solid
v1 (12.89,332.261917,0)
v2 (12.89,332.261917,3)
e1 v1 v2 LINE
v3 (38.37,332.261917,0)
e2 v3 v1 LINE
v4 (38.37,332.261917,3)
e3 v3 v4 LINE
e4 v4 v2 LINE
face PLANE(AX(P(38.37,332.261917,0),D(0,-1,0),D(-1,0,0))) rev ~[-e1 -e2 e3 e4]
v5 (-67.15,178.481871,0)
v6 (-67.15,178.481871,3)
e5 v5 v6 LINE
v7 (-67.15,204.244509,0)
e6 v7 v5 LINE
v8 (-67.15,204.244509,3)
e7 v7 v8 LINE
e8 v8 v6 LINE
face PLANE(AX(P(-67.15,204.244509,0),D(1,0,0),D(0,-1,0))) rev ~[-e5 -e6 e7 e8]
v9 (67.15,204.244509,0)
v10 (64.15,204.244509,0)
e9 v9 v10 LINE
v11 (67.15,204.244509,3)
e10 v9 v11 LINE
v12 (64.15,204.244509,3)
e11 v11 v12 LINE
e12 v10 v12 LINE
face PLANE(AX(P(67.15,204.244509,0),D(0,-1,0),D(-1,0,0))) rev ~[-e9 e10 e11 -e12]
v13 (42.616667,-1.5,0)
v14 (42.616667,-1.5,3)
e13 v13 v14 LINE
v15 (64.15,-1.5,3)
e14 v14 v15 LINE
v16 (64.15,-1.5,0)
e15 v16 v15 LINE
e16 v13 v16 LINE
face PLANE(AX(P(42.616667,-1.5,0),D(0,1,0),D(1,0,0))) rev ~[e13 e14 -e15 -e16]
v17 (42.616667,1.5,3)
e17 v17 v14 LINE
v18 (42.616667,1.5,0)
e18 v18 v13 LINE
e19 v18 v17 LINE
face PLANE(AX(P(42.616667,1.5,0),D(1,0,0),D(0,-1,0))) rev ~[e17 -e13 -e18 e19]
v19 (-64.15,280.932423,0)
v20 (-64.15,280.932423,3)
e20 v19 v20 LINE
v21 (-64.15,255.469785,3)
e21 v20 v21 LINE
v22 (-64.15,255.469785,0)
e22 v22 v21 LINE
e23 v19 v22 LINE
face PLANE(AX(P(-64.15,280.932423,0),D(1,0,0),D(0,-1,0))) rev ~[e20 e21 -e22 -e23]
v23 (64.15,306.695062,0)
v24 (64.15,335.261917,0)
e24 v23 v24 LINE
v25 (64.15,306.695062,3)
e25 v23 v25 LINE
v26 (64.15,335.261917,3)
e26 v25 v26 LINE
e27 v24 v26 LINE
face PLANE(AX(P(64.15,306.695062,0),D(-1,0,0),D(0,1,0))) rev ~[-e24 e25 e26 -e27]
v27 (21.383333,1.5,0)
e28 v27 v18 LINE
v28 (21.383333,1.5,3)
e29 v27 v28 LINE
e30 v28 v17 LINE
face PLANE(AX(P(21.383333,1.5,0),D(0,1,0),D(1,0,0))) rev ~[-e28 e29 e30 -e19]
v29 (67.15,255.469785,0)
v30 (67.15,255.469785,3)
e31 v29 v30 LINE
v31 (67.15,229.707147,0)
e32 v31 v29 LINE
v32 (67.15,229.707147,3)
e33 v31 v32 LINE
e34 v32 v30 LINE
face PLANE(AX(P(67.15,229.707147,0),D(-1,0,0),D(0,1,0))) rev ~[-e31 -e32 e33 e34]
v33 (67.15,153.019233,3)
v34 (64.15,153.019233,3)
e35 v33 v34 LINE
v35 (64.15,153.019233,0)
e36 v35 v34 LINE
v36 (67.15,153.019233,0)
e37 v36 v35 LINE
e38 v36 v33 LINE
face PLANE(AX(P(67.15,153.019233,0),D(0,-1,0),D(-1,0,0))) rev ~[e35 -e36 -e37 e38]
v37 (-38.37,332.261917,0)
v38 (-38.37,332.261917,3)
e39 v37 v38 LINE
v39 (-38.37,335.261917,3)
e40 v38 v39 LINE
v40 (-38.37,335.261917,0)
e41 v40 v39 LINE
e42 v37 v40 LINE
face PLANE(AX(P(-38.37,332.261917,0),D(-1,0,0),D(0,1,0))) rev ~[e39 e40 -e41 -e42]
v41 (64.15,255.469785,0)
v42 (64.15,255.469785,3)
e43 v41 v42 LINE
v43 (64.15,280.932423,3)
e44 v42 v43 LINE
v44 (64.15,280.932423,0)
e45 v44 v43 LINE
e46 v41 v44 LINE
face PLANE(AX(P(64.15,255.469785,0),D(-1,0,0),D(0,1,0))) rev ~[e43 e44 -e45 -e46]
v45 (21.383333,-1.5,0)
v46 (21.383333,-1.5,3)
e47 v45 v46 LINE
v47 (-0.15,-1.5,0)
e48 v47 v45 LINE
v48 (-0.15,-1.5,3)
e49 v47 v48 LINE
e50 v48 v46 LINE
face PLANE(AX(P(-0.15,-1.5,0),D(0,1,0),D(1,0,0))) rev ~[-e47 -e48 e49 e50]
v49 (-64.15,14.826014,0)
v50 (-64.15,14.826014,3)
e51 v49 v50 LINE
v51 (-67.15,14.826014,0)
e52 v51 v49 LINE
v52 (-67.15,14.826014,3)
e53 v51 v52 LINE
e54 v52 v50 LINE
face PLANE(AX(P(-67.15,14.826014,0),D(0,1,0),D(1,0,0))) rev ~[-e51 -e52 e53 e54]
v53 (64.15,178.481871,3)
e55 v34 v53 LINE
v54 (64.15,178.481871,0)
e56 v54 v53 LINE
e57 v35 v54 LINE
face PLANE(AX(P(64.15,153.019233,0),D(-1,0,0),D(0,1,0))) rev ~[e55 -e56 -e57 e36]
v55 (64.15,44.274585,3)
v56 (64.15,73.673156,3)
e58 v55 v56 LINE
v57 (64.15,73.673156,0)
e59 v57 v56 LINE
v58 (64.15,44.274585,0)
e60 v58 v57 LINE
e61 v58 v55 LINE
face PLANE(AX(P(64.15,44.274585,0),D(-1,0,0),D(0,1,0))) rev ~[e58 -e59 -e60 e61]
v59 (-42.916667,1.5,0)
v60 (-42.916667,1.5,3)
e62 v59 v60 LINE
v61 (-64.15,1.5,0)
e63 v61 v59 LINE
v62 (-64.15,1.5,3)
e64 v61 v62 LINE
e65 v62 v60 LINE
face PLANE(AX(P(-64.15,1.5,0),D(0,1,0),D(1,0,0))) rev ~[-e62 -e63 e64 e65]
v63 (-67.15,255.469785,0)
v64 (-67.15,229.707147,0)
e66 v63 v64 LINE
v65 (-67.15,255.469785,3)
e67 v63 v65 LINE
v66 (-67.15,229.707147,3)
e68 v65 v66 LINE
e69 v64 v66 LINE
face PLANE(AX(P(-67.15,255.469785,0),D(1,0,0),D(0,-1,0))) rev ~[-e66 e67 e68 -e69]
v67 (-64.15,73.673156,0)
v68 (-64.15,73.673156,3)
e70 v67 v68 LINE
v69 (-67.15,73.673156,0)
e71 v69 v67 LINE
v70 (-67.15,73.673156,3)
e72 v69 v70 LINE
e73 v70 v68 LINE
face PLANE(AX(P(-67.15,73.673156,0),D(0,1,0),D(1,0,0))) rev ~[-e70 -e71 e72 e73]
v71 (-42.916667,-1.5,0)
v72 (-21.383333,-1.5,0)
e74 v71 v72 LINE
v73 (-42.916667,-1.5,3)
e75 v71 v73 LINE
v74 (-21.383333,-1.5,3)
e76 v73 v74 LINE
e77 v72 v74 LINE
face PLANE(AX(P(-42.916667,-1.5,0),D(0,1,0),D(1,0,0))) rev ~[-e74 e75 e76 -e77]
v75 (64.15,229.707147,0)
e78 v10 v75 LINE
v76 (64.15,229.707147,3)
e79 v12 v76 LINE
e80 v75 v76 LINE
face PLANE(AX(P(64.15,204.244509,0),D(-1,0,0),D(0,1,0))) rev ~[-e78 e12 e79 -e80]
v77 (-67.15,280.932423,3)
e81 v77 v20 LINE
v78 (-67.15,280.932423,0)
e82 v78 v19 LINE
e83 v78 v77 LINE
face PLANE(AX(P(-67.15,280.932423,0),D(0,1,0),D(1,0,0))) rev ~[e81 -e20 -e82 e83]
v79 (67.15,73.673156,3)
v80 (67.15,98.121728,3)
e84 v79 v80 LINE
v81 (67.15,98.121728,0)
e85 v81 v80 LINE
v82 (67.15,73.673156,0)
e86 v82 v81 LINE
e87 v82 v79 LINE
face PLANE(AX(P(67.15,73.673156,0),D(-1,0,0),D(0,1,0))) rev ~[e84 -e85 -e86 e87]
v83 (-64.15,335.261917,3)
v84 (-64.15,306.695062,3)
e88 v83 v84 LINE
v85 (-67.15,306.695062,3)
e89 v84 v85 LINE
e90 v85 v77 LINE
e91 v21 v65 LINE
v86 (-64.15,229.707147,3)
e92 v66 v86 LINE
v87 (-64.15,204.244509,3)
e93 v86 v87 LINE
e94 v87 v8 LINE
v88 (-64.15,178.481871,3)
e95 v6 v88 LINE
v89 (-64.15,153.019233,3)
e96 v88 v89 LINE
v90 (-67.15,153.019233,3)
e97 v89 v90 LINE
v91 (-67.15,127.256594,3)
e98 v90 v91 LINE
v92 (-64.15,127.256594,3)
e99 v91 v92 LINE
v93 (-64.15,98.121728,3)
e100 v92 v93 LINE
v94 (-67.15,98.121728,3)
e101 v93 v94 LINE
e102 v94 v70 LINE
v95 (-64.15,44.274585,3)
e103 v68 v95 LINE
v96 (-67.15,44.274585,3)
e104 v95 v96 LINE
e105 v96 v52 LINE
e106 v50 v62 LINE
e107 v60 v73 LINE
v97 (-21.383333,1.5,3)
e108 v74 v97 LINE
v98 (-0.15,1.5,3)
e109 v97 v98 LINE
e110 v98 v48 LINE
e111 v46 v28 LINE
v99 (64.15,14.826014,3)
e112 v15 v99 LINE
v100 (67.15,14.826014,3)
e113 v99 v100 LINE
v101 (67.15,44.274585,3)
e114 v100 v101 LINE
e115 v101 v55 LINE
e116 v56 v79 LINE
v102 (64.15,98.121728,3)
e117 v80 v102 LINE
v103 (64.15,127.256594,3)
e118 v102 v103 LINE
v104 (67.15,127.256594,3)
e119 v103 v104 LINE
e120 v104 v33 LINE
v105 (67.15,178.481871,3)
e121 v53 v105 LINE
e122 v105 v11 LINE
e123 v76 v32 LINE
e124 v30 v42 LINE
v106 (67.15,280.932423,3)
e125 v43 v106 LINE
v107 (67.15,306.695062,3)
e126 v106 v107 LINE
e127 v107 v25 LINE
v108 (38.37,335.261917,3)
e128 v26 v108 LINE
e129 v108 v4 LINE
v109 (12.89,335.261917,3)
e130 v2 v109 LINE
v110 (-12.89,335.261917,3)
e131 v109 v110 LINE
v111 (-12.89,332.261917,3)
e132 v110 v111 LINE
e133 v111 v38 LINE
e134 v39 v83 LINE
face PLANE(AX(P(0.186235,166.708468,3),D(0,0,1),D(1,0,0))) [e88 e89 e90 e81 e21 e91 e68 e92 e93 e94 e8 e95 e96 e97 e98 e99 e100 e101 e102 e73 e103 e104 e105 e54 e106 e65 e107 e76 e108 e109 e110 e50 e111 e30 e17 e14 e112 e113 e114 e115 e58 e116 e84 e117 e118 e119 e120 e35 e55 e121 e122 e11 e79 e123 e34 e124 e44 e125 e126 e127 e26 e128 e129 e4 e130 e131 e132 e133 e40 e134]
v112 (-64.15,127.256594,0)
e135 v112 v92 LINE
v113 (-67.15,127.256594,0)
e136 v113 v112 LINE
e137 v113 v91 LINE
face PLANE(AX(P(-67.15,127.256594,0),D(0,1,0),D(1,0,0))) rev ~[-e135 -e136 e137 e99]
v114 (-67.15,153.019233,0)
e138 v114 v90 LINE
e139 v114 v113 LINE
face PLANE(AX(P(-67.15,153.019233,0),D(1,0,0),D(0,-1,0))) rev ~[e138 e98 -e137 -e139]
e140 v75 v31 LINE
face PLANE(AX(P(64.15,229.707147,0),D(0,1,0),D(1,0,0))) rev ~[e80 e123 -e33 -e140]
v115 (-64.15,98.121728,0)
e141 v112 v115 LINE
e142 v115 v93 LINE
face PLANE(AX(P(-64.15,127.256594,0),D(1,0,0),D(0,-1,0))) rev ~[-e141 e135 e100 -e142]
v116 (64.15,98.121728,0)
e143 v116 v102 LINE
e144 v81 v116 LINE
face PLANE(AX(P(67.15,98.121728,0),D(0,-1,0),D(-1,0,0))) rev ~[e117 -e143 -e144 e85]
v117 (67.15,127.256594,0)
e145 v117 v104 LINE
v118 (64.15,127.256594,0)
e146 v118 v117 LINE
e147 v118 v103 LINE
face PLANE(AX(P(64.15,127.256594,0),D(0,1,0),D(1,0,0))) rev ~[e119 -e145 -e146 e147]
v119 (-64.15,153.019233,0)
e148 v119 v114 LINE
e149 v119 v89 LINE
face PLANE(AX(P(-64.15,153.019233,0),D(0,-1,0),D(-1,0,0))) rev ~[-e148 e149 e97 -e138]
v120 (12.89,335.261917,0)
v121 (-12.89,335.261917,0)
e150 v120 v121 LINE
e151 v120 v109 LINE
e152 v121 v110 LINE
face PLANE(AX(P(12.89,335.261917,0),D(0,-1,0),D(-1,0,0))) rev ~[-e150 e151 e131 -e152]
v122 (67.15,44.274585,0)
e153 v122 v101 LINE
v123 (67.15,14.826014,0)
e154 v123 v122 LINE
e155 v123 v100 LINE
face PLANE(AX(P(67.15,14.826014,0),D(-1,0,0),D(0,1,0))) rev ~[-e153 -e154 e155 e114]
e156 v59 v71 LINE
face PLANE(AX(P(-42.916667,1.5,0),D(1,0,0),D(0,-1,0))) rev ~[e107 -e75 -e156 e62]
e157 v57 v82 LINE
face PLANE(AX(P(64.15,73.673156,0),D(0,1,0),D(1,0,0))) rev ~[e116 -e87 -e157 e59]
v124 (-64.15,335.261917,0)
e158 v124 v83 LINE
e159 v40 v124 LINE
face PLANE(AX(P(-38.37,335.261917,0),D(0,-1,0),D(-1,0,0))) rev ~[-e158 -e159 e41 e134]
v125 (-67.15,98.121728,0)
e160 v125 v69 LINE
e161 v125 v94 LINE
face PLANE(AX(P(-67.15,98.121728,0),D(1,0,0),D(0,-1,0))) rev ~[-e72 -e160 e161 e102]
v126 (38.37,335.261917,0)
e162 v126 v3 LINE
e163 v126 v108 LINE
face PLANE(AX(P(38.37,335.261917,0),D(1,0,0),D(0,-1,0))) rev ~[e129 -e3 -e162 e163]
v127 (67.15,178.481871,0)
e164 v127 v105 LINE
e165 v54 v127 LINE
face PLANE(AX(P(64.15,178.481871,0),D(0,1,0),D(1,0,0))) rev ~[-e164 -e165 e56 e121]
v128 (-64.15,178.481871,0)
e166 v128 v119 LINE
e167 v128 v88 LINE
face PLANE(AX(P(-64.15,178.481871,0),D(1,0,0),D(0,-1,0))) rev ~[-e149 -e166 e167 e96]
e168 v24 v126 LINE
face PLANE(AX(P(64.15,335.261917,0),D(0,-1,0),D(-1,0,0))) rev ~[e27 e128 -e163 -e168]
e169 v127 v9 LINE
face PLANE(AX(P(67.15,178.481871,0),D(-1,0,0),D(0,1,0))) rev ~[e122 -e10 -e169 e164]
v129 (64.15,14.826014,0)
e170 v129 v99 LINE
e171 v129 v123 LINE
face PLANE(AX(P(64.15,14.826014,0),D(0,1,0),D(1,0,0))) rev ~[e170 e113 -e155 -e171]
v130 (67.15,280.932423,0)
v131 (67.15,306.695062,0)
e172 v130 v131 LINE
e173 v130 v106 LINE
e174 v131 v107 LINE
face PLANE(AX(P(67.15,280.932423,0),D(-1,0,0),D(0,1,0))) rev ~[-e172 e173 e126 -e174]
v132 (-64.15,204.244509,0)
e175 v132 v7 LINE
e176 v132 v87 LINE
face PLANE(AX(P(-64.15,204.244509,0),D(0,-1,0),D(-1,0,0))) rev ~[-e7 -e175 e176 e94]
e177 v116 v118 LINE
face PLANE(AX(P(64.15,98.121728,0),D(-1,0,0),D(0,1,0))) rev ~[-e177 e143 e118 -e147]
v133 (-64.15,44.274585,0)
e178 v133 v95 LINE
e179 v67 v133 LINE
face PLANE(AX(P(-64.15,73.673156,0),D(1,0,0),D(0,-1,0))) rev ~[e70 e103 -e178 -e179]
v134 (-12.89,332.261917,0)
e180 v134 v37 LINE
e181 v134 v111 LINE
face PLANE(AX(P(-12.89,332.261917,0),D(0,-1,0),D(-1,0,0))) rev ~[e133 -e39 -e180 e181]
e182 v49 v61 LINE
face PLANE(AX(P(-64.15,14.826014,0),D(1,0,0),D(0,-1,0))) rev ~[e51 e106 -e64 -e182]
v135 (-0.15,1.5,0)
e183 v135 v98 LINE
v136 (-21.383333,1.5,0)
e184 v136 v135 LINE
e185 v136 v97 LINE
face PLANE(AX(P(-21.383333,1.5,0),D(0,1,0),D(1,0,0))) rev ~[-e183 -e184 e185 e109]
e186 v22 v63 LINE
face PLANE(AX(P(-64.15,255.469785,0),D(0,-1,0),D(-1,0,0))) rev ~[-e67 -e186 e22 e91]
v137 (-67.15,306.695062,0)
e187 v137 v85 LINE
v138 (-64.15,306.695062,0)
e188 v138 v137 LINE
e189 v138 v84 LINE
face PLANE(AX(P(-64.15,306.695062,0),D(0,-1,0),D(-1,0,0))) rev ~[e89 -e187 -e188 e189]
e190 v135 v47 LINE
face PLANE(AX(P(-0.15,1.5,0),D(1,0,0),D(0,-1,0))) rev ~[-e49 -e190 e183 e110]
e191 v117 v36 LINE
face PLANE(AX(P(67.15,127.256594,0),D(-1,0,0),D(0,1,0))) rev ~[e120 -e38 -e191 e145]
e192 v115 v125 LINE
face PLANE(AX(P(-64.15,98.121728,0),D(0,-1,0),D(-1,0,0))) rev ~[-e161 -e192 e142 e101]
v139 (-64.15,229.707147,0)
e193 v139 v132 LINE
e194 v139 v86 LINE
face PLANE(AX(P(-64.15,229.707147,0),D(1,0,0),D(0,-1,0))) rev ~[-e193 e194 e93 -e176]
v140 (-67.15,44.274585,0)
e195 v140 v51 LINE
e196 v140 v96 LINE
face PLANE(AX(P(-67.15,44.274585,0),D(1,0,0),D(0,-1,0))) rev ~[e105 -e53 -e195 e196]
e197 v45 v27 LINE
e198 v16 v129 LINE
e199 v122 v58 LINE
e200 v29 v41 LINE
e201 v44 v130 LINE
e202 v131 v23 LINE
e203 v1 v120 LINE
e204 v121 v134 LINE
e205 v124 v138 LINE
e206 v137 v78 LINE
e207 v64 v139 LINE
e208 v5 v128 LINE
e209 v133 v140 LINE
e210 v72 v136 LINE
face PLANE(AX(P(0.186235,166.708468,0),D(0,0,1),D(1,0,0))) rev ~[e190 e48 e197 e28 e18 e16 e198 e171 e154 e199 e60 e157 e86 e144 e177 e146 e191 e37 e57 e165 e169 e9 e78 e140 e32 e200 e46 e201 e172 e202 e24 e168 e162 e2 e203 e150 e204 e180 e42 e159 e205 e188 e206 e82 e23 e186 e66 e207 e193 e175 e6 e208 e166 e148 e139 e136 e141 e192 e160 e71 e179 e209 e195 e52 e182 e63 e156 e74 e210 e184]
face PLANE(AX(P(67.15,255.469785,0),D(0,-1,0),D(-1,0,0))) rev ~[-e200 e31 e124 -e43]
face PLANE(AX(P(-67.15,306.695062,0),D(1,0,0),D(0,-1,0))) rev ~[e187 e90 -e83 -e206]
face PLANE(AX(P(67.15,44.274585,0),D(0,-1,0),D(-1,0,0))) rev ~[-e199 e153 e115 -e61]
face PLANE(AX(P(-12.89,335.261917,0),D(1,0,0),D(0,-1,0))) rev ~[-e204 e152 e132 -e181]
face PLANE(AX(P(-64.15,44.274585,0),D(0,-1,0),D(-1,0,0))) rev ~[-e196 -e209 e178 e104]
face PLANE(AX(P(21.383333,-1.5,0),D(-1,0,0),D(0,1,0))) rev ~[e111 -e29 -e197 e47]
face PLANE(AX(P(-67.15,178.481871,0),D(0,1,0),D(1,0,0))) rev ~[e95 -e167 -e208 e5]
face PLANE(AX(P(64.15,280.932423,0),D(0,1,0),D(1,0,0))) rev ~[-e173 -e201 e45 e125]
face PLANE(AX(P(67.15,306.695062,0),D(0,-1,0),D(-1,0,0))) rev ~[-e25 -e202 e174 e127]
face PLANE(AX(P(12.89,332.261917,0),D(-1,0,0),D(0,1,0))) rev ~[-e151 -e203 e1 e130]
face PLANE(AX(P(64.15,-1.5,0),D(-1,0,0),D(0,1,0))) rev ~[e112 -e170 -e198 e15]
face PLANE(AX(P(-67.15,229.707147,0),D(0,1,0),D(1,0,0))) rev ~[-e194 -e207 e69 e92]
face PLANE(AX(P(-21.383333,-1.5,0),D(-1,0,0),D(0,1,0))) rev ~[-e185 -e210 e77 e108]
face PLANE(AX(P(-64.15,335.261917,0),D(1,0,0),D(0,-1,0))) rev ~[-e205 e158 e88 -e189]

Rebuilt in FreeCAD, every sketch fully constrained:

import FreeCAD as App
import Part
import Sketcher
from FreeCAD import Vector


def add_polygon(sketch, points):
    """Adds a closed chain of lines whose ends are joined by coincident constraints."""
    first, n = sketch.GeometryCount, len(points)
    for a, b in zip(points, points[1:] + points[:1]):
        sketch.addGeometry(Part.LineSegment(App.Vector(*a, 0), App.Vector(*b, 0)), False)
    for i in range(n):
        sketch.addConstraint(Sketcher.Constraint("Coincident", first + i, 2, first + (i + 1) % n, 1))

doc = App.newDocument("Part")
body = doc.addObject("PartDesign::Body", "Body")

# Sketch on XY plane
sketch1 = body.newObject("Sketcher::SketchObject", "Sketch")
sketch1.AttachmentSupport = (doc.getObject("XY_Plane"), [""])
sketch1.MapMode = "FlatFace"
add_polygon(sketch1, [(64.2, 153), (64.2, 178.5), (67.2, 178.5), (67.2, 204.2), (64.2, 204.2), (64.2, 229.7), (67.2, 229.7), (67.2, 255.5), (64.2, 255.5), (64.2, 280.9), (67.2, 280.9), (67.2, 306.7), (64.2, 306.7), (64.2, 335.3), (38.4, 335.3), (38.4, 332.3), (12.9, 332.3), (12.9, 335.3), (-12.9, 335.3), (-12.9, 332.3), (-38.4, 332.3), (-38.4, 335.3), (-64.2, 335.3), (-64.2, 306.7), (-67.2, 306.7), (-67.2, 280.9), (-64.2, 280.9), (-64.2, 255.5), (-67.2, 255.5), (-67.2, 229.7), (-64.2, 229.7), (-64.2, 204.2), (-67.2, 204.2), (-67.2, 178.5), (-64.2, 178.5), (-64.2, 153), (-67.2, 153), (-67.2, 127.3), (-64.2, 127.3), (-64.2, 98.1), (-67.2, 98.1), (-67.2, 73.7), (-64.2, 73.7), (-64.2, 44.3), (-67.2, 44.3), (-67.2, 14.8), (-64.2, 14.8), (-64.2, 1.5), (-42.9, 1.5), (-42.9, -1.5), (-21.4, -1.5), (-21.4, 1.5), (-0.1, 1.5), (-0.1, -1.5), (21.4, -1.5), (21.4, 1.5), (42.6, 1.5), (42.6, -1.5), (64.2, -1.5), (64.2, 14.8), (67.2, 14.8), (67.2, 44.3), (64.2, 44.3), (64.2, 73.7), (67.2, 73.7), (67.2, 98.1), (64.2, 98.1), (64.2, 127.3), (67.2, 127.3), (67.2, 153)])  # lines 0-69
sketch1.addConstraint([
    Sketcher.Constraint("Vertical", 0),
    Sketcher.Constraint("Horizontal", 1),
    Sketcher.Constraint("Vertical", 2),
    Sketcher.Constraint("Horizontal", 3),
    Sketcher.Constraint("Vertical", 4),
    Sketcher.Constraint("Horizontal", 5),
    Sketcher.Constraint("Vertical", 6),
    Sketcher.Constraint("Horizontal", 7),
    Sketcher.Constraint("Vertical", 8),
    Sketcher.Constraint("Horizontal", 9),
    Sketcher.Constraint("Vertical", 10),
    Sketcher.Constraint("Horizontal", 11),
    Sketcher.Constraint("Vertical", 12),
    Sketcher.Constraint("Horizontal", 13),
    Sketcher.Constraint("Vertical", 14),
    Sketcher.Constraint("Horizontal", 15),
    Sketcher.Constraint("Vertical", 16),
    Sketcher.Constraint("Horizontal", 17),
    Sketcher.Constraint("Vertical", 18),
    Sketcher.Constraint("Horizontal", 19),
    Sketcher.Constraint("Vertical", 20),
    Sketcher.Constraint("Horizontal", 21),
    Sketcher.Constraint("Vertical", 22),
    Sketcher.Constraint("Horizontal", 23),
    Sketcher.Constraint("Vertical", 24),
    Sketcher.Constraint("Horizontal", 25),
    Sketcher.Constraint("Vertical", 26),
    Sketcher.Constraint("Horizontal", 27),
    Sketcher.Constraint("Vertical", 28),
    Sketcher.Constraint("Horizontal", 29),
    Sketcher.Constraint("Vertical", 30),
    Sketcher.Constraint("Horizontal", 31),
    Sketcher.Constraint("Vertical", 32),
    Sketcher.Constraint("Horizontal", 33),
    Sketcher.Constraint("Vertical", 34),
    Sketcher.Constraint("Horizontal", 35),
    Sketcher.Constraint("Vertical", 36),
    Sketcher.Constraint("Horizontal", 37),
    Sketcher.Constraint("Vertical", 38),
    Sketcher.Constraint("Horizontal", 39),
    Sketcher.Constraint("Vertical", 40),
    Sketcher.Constraint("Horizontal", 41),
    Sketcher.Constraint("Vertical", 42),
    Sketcher.Constraint("Horizontal", 43),
    Sketcher.Constraint("Vertical", 44),
    Sketcher.Constraint("Horizontal", 45),
    Sketcher.Constraint("Vertical", 46),
    Sketcher.Constraint("Horizontal", 47),
    Sketcher.Constraint("Vertical", 48),
    Sketcher.Constraint("Horizontal", 49),
    Sketcher.Constraint("Vertical", 50),
    Sketcher.Constraint("Horizontal", 51),
    Sketcher.Constraint("Vertical", 52),
    Sketcher.Constraint("Horizontal", 53),
    Sketcher.Constraint("Vertical", 54),
    Sketcher.Constraint("Horizontal", 55),
    Sketcher.Constraint("Vertical", 56),
    Sketcher.Constraint("Horizontal", 57),
    Sketcher.Constraint("Vertical", 58),
    Sketcher.Constraint("Horizontal", 59),
    Sketcher.Constraint("Vertical", 60),
    Sketcher.Constraint("Horizontal", 61),
    Sketcher.Constraint("Vertical", 62),
    Sketcher.Constraint("Horizontal", 63),
    Sketcher.Constraint("Vertical", 64),
    Sketcher.Constraint("Horizontal", 65),
    Sketcher.Constraint("Vertical", 66),
    Sketcher.Constraint("Horizontal", 67),
    Sketcher.Constraint("Vertical", 68),
    Sketcher.Constraint("Horizontal", 69),
    Sketcher.Constraint("Symmetric", 50, 2, 53, 2, -1, 1),
    Sketcher.Constraint("Symmetric", 46, 2, 57, 2, -1, 1),
    Sketcher.Constraint("Symmetric", 15, 2, 18, 2, -2),
    Sketcher.Constraint("Symmetric", 13, 2, 20, 2, -2),
    Sketcher.Constraint("Symmetric", 11, 2, 22, 2, -2),
    Sketcher.Constraint("Symmetric", 9, 2, 24, 2, -2),
    Sketcher.Constraint("Symmetric", 7, 2, 26, 2, -2),
    Sketcher.Constraint("Symmetric", 5, 2, 28, 2, -2),
    Sketcher.Constraint("Symmetric", 3, 2, 30, 2, -2),
    Sketcher.Constraint("Symmetric", 1, 2, 32, 2, -2),
    Sketcher.Constraint("Symmetric", 44, 2, 59, 2, -2),
    Sketcher.Constraint("Symmetric", 42, 2, 61, 2, -2),
    Sketcher.Constraint("Symmetric", 40, 2, 63, 2, -2),
    Sketcher.Constraint("Symmetric", 38, 2, 65, 2, -2),
    Sketcher.Constraint("Symmetric", 36, 2, 67, 2, -2),
    Sketcher.Constraint("Symmetric", 34, 2, 69, 2, -2),
    Sketcher.Constraint("Horizontal", 13, 2, 16, 2),
    Sketcher.Constraint("Horizontal", 47, 2, 50, 2),
    Sketcher.Constraint("Horizontal", 49, 2, 52, 2),
    Sketcher.Constraint("Horizontal", 51, 2, 54, 2),
    Sketcher.Constraint("Vertical", 0, 2, 3, 2),
    Sketcher.Constraint("Vertical", 2, 2, 5, 2),
    Sketcher.Constraint("Vertical", 4, 2, 7, 2),
    Sketcher.Constraint("Vertical", 6, 2, 9, 2),
    Sketcher.Constraint("Vertical", 8, 2, 11, 2),
    Sketcher.Constraint("Vertical", 32, 2, 35, 2),
    Sketcher.Constraint("Vertical", 34, 2, 37, 2),
    Sketcher.Constraint("Vertical", 36, 2, 39, 2),
    Sketcher.Constraint("Vertical", 38, 2, 41, 2),
    Sketcher.Constraint("Vertical", 40, 2, 43, 2),
    Sketcher.Constraint("Vertical", 42, 2, 45, 2),
    Sketcher.Constraint("Equal", 13, 17),
    Sketcher.Constraint("Equal", 47, 51),
    Sketcher.Constraint("Equal", 49, 53),
    Sketcher.Constraint("Equal", 51, 55),
    Sketcher.Constraint("Equal", 0, 4),
    Sketcher.Constraint("Equal", 2, 6),
    Sketcher.Constraint("Equal", 4, 8),
    Sketcher.Constraint("Equal", 6, 10),
    Sketcher.Constraint("Equal", 69, 14),
    Sketcher.Constraint("Equal", 32, 36),
    Sketcher.Constraint("Equal", 20, 48),
    Sketcher.Constraint("DistanceX", 1, 1, 1, 2, 3.0),
    Sketcher.Constraint("DistanceX", 13, 2, 13, 1, 25.78),
    Sketcher.Constraint("DistanceX", 15, 2, 15, 1, 25.48),
    Sketcher.Constraint("DistanceX", 51, 2, -1, 1, 0.15),
    Sketcher.Constraint("DistanceY", 0, 1, 0, 2, 25.462638),
    Sketcher.Constraint("DistanceY", 2, 1, 2, 2, 25.762638),
    Sketcher.Constraint("DistanceY", 40, 2, 40, 1, 24.448571),
    Sketcher.Constraint("DistanceY", 42, 2, 42, 1, 29.398571),
    Sketcher.Constraint("DistanceY", 44, 2, 44, 1, 29.448571),
    Sketcher.Constraint("DistanceY", 12, 1, 12, 2, 28.566855),
    Sketcher.Constraint("DistanceY", 38, 2, 38, 1, 29.134867),
    Sketcher.Constraint("DistanceY", 46, 2, 46, 1, 13.326014),
])
pad1 = body.newObject("PartDesign::Pad", "Pad")
pad1.Profile = sketch1
pad1.Length = 3

doc.recompute()
